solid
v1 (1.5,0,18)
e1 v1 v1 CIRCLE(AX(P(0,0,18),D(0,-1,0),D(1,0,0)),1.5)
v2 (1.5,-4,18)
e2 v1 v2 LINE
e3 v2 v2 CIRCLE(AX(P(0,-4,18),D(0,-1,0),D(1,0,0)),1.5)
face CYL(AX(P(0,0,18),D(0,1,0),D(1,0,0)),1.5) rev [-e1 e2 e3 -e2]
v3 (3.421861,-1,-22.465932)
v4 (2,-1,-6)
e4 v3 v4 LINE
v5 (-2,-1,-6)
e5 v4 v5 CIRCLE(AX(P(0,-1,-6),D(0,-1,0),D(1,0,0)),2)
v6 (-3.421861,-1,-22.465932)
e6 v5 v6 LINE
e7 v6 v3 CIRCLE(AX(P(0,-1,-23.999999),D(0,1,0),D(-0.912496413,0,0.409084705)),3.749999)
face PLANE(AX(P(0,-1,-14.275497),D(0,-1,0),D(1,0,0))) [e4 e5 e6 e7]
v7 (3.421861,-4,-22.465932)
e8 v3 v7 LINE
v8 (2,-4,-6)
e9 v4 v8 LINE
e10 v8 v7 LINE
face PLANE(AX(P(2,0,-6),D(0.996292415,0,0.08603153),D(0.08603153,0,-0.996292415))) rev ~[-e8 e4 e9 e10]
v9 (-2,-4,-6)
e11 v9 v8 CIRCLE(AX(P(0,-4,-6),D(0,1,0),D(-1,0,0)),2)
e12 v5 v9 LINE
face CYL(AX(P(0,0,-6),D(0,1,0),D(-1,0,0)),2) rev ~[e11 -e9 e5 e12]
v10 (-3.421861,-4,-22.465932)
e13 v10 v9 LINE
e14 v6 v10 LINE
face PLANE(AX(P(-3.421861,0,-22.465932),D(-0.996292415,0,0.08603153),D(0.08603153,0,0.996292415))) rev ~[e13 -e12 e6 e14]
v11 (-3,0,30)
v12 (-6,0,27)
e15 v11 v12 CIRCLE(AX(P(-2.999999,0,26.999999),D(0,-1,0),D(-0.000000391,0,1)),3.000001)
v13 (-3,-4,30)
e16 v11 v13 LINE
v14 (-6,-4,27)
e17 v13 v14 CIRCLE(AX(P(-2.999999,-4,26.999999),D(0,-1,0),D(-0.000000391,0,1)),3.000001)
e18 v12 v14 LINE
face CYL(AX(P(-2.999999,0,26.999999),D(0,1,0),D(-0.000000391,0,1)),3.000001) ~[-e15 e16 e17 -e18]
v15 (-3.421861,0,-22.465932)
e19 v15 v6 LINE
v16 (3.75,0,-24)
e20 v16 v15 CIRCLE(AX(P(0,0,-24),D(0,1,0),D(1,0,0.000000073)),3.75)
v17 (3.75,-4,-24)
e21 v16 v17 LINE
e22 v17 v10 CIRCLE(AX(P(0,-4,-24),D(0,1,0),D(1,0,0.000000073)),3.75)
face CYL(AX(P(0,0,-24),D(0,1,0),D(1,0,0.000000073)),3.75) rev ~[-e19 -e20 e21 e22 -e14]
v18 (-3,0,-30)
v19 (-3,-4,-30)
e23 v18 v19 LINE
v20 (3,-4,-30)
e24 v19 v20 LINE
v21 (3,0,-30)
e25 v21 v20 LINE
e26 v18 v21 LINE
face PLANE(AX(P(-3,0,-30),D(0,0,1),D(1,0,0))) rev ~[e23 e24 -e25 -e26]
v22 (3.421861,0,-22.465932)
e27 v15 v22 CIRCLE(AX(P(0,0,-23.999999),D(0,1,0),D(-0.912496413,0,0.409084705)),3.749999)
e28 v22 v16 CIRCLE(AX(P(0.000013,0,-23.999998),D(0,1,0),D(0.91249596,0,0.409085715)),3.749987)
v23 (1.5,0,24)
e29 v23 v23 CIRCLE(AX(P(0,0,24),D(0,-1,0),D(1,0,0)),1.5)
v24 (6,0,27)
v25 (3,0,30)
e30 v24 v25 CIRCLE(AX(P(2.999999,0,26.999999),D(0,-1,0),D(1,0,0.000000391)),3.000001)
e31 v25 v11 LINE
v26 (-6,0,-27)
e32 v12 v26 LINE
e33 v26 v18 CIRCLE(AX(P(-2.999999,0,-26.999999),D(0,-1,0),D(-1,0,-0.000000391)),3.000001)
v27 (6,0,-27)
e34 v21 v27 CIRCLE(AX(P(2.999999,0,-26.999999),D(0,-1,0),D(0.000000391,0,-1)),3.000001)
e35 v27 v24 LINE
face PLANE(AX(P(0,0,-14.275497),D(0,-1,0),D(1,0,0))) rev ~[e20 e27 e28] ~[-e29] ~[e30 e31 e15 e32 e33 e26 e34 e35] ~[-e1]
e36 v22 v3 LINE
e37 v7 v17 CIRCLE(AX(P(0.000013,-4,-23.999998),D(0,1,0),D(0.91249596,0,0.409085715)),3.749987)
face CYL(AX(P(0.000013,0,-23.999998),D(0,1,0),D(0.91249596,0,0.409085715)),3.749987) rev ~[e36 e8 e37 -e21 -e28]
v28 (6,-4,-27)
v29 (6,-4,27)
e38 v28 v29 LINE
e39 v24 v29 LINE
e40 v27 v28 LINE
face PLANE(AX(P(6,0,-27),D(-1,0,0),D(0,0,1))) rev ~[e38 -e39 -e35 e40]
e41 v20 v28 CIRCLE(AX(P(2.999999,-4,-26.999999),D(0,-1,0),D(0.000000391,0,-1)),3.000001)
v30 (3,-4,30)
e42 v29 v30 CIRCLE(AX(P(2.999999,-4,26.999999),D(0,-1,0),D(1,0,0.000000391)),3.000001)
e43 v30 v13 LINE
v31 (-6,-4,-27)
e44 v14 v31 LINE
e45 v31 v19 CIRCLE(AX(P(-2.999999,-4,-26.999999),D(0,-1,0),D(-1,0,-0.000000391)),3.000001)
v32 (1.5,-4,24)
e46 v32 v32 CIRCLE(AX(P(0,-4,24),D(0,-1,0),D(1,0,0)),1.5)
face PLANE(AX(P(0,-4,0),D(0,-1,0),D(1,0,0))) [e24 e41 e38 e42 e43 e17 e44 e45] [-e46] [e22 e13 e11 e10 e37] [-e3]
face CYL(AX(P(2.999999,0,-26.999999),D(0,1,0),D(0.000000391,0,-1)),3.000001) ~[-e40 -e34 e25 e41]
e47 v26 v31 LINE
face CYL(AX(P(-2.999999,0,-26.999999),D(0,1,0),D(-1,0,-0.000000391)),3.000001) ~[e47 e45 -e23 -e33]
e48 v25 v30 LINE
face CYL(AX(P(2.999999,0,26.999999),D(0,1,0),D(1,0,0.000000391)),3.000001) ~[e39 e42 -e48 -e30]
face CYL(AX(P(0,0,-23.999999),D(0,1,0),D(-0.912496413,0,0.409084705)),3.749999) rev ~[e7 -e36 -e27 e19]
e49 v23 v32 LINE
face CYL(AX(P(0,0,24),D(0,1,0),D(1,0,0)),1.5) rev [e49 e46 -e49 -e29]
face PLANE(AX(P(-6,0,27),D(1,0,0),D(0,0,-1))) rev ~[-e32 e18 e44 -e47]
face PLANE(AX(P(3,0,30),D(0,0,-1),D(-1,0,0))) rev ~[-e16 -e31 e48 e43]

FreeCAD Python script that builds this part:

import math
import FreeCAD as App
import Part
import Sketcher

V = App.Vector

doc = App.newDocument("Part")
body = doc.addObject("PartDesign::Body", "Body")

# Sketch on XZ plane
sketch1 = doc.addObject("Sketcher::SketchObject", "Sketch")
body.addObject(sketch1)
sketch1.AttachmentSupport = (doc.XZ_Plane, [""])
sketch1.MapMode = "FlatFace"
sketch1.addGeometry(Part.LineSegment(V(-3, -30, 0), V(3, -30, 0)), False)
sketch1.addGeometry(Part.ArcOfCircle(Part.Circle(V(3, -27, 0), V(0, 0, 1), 3), math.radians(-90), math.radians(0)), False)
sketch1.addGeometry(Part.LineSegment(V(6, -27, 0), V(6, 27, 0)), False)
sketch1.addGeometry(Part.ArcOfCircle(Part.Circle(V(3, 27, 0), V(0, 0, 1), 3), math.radians(0), math.radians(90)), False)
sketch1.addGeometry(Part.LineSegment(V(3, 30, 0), V(-3, 30, 0)), False)
sketch1.addGeometry(Part.ArcOfCircle(Part.Circle(V(-3, 27, 0), V(0, 0, 1), 3), math.radians(90), math.radians(180)), False)
sketch1.addGeometry(Part.LineSegment(V(-6, 27, 0), V(-6, -27, 0)), False)
sketch1.addGeometry(Part.ArcOfCircle(Part.Circle(V(-3, -27, 0), V(0, 0, 1), 3), math.radians(-180), math.radians(-90)), False)
sketch1.addGeometry(Part.ArcOfCircle(Part.Circle(V(0, -24, 0), V(0, 0, 1), 3.7), math.radians(0), math.radians(24)), False)
sketch1.addGeometry(Part.ArcOfCircle(Part.Circle(V(0, -24, 0), V(0, 0, 1), 3.7), math.radians(156), math.radians(360)), False)
sketch1.addGeometry(Part.LineSegment(V(-3.4, -22.5, 0), V(-2, -6, 0)), False)
sketch1.addGeometry(Part.ArcOfCircle(Part.Circle(V(0, -6, 0), V(0, 0, 1), 2), math.radians(0), math.radians(180)), False)
sketch1.addGeometry(Part.LineSegment(V(2, -6, 0), V(3.4, -22.5, 0)), False)
sketch1.addGeometry(Part.Circle(V(0, 18, 0), V(0, 0, 1), 1.5), False)
sketch1.addGeometry(Part.Circle(V(0, 24, 0), V(0, 0, 1), 1.5), False)
sketch1.addConstraint(Sketcher.Constraint("Tangent", 0, 2, 1, 1))
sketch1.addConstraint(Sketcher.Constraint("Tangent", 1, 2, 2, 1))
sketch1.addConstraint(Sketcher.Constraint("Tangent", 2, 2, 3, 1))
sketch1.addConstraint(Sketcher.Constraint("Tangent", 3, 2, 4, 1))
sketch1.addConstraint(Sketcher.Constraint("Tangent", 4, 2, 5, 1))
sketch1.addConstraint(Sketcher.Constraint("Tangent", 5, 2, 6, 1))
sketch1.addConstraint(Sketcher.Constraint("Tangent", 6, 2, 7, 1))
sketch1.addConstraint(Sketcher.Constraint("Tangent", 7, 2, 0, 1))
sketch1.addConstraint(Sketcher.Constraint("Tangent", 8, 1, 9, 2))
sketch1.addConstraint(Sketcher.Constraint("Coincident", 9, 1, 10, 1))
sketch1.addConstraint(Sketcher.Constraint("Coincident", 10, 2, 11, 2))
sketch1.addConstraint(Sketcher.Constraint("Coincident", 11, 1, 12, 1))
sketch1.addConstraint(Sketcher.Constraint("Coincident", 12, 2, 8, 2))
sketch1.addConstraint(Sketcher.Constraint("Horizontal", 0))
sketch1.addConstraint(Sketcher.Constraint("Vertical", 2))
sketch1.addConstraint(Sketcher.Constraint("Horizontal", 4))
sketch1.addConstraint(Sketcher.Constraint("Vertical", 6))
sketch1.addConstraint(Sketcher.Constraint("Equal", 1, 3))
sketch1.addConstraint(Sketcher.Constraint("Equal", 3, 5))
sketch1.addConstraint(Sketcher.Constraint("Equal", 5, 7))
sketch1.addConstraint(Sketcher.Constraint("Equal", 13, 14))
sketch1.addConstraint(Sketcher.Constraint("Symmetric", 1, 3, 5, 3, -1, 1))
sketch1.addConstraint(Sketcher.Constraint("Symmetric", 9, 3, 14, 3, -1, 1))
sketch1.addConstraint(Sketcher.Constraint("Symmetric", 10, 2, 11, 1, -2))
sketch1.addConstraint(Sketcher.Constraint("Symmetric", 9, 1, 12, 2, -2))
sketch1.addConstraint(Sketcher.Constraint("PointOnObject", 9, 3, -2))
sketch1.addConstraint(Sketcher.Constraint("PointOnObject", 13, 3, -2))
sketch1.addConstraint(Sketcher.Constraint("Horizontal", 9, 3, 8, 1))
sketch1.addConstraint(Sketcher.Constraint("Horizontal", 11, 3, 10, 2))
sketch1.addConstraint(Sketcher.Constraint("Diameter", 13, 3.0))
sketch1.addConstraint(Sketcher.Constraint("Radius", 1, 3.000001))
sketch1.addConstraint(Sketcher.Constraint("Radius", 11, 2.0))
sketch1.addConstraint(Sketcher.Constraint("DistanceX", 0, 1, 0, 2, 6.0))
sketch1.addConstraint(Sketcher.Constraint("DistanceY", 2, 1, 2, 2, 54.0))
sketch1.addConstraint(Sketcher.Constraint("Radius", 9, 3.75))
sketch1.addConstraint(Sketcher.Constraint("DistanceY", 8, 3, -1, 1, 23.999998))
sketch1.addConstraint(Sketcher.Constraint("DistanceY", 11, 3, -1, 1, 6.0))
sketch1.addConstraint(Sketcher.Constraint("DistanceY", -1, 1, 13, 3, 18.0))
sketch1.addConstraint(Sketcher.Constraint("Distance", 10, 16.527208))
pad1 = doc.addObject("PartDesign::Pad", "Pad")
body.addObject(pad1)
pad1.Profile = sketch1
pad1.Length = 4

# Sketch on XZ plane
sketch2 = doc.addObject("Sketcher::SketchObject", "Sketch001")
body.addObject(sketch2)
sketch2.AttachmentSupport = (doc.XZ_Plane, [""])
sketch2.MapMode = "FlatFace"
sketch2.addGeometry(Part.LineSegment(V(-2, -6, 0), V(-3.4, -22.5, 0)), False)
sketch2.addGeometry(Part.ArcOfCircle(Part.Circle(V(0, -24, 0), V(0, 0, 1), 3.7), math.radians(24), math.radians(156)), False)
sketch2.addGeometry(Part.LineSegment(V(3.4, -22.5, 0), V(2, -6, 0)), False)
sketch2.addGeometry(Part.ArcOfCircle(Part.Circle(V(0, -6, 0), V(0, 0, 1), 2), math.radians(0), math.radians(180)), False)
sketch2.addConstraint(Sketcher.Constraint("Coincident", 0, 2, 1, 2))
sketch2.addConstraint(Sketcher.Constraint("Coincident", 1, 1, 2, 1))
sketch2.addConstraint(Sketcher.Constraint("Coincident", 2, 2, 3, 1))
sketch2.addConstraint(Sketcher.Constraint("Coincident", 3, 2, 0, 1))
sketch2.addConstraint(Sketcher.Constraint("Symmetric", 0, 2, 1, 1, -2))
sketch2.addConstraint(Sketcher.Constraint("Symmetric", 2, 2, 3, 2, -2))
sketch2.addConstraint(Sketcher.Constraint("Horizontal", 3, 3, 2, 2))
sketch2.addConstraint(Sketcher.Constraint("Radius", 3, 2.0))
sketch2.addConstraint(Sketcher.Constraint("Radius", 1, 3.749999))
sketch2.addConstraint(Sketcher.Constraint("DistanceY", 1, 3, -1, 1, 23.999999))
sketch2.addConstraint(Sketcher.Constraint("DistanceY", 3, 3, -1, 1, 6.0))
sketch2.addConstraint(Sketcher.Constraint("Distance", 0, 16.527208))
pad2 = doc.addObject("PartDesign::Pad", "Pad001")
body.addObject(pad2)
pad2.Profile = sketch2
pad2.Length = 1

doc.recompute()
